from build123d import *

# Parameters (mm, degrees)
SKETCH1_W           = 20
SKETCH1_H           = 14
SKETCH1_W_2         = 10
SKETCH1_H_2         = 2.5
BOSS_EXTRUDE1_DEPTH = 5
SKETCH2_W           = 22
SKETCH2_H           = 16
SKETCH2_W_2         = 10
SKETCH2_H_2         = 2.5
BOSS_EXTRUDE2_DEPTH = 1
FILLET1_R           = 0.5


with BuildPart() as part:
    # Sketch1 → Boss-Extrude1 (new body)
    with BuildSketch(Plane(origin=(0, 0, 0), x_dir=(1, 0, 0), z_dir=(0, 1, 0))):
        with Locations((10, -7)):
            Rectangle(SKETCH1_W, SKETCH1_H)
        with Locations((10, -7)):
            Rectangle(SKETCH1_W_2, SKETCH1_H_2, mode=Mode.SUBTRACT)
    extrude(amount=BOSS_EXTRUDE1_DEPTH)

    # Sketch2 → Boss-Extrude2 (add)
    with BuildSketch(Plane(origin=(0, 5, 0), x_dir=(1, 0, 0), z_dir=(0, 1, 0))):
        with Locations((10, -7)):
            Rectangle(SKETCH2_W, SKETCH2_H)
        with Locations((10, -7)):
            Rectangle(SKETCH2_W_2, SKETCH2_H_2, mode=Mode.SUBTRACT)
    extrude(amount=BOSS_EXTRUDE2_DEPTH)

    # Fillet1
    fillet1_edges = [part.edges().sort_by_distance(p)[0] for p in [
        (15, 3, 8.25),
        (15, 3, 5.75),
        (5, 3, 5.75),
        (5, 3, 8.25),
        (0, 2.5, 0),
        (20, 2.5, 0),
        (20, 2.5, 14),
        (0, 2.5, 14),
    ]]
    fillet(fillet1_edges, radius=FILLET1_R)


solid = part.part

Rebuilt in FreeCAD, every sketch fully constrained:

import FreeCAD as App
import Part
import Sketcher

V = App.Vector
Q = App.Units.Quantity


def edges_at(feature, points):
    """Names of the edges that pass closest to the given points."""
    edges = feature.Shape.Edges
    near = lambda p: min(range(len(edges)), key=lambda i: edges[i].distToShape(Part.Vertex(*p))[0])
    return sorted({f"Edge{near(p) + 1}" for p in points})

doc = App.newDocument("Part")
body = doc.addObject("PartDesign::Body", "Body")

# Sketch on XZ plane
sketch1 = doc.addObject("Sketcher::SketchObject", "Sketch")
body.addObject(sketch1)
sketch1.AttachmentSupport = (doc.XZ_Plane, [""])
sketch1.MapMode = "FlatFace"
sketch1.addGeometry([
    Part.LineSegment(V(0, 0, 0), V(0, 14, 0)),  # 0
    Part.LineSegment(V(0, 14, 0), V(20, 14, 0)),  # 1
    Part.LineSegment(V(20, 14, 0), V(20, 0, 0)),  # 2
    Part.LineSegment(V(20, 0, 0), V(0, 0, 0)),  # 3
    Part.LineSegment(V(15, 8.2, 0), V(5, 8.2, 0)),  # 4
    Part.LineSegment(V(5, 8.2, 0), V(5, 5.8, 0)),  # 5
    Part.LineSegment(V(5, 5.8, 0), V(15, 5.8, 0)),  # 6
    Part.LineSegment(V(15, 5.8, 0), V(15, 8.2, 0)),  # 7
], False)
sketch1.addConstraint([
    Sketcher.Constraint("Coincident", 0, 2, 1, 1),
    Sketcher.Constraint("Coincident", 1, 2, 2, 1),
    Sketcher.Constraint("Coincident", 2, 2, 3, 1),
    Sketcher.Constraint("Coincident", 3, 2, 0, 1),
    Sketcher.Constraint("Coincident", 4, 2, 5, 1),
    Sketcher.Constraint("Coincident", 5, 2, 6, 1),
    Sketcher.Constraint("Coincident", 6, 2, 7, 1),
    Sketcher.Constraint("Coincident", 7, 2, 4, 1),
    Sketcher.Constraint("Vertical", 0),
    Sketcher.Constraint("Horizontal", 1),
    Sketcher.Constraint("Vertical", 2),
    Sketcher.Constraint("Horizontal", 3),
    Sketcher.Constraint("Horizontal", 4),
    Sketcher.Constraint("Vertical", 5),
    Sketcher.Constraint("Horizontal", 6),
    Sketcher.Constraint("Vertical", 7),
    Sketcher.Constraint("Coincident", 3, 2, -1, 1),
    Sketcher.Constraint("DistanceX", 1, 1, 1, 2, Q("20 mm")),
    Sketcher.Constraint("DistanceX", 4, 2, 4, 1, Q("10 mm")),
    Sketcher.Constraint("DistanceY", 0, 1, 0, 2, Q("14 mm")),
    Sketcher.Constraint("DistanceY", 5, 2, 5, 1, Q("2.5 mm")),
    Sketcher.Constraint("DistanceX", -1, 1, 4, 2, Q("5 mm")),
    Sketcher.Constraint("DistanceY", -1, 1, 4, 2, Q("8.25 mm")),
])
pad1 = doc.addObject("PartDesign::Pad", "Pad")
body.addObject(pad1)
pad1.Profile = sketch1
pad1.Length = 5
pad1.Reversed = True

# Sketch on XZ plane
sketch2 = doc.addObject("Sketcher::SketchObject", "Sketch001")
body.addObject(sketch2)
sketch2.AttachmentSupport = (doc.XZ_Plane, [""])
sketch2.MapMode = "FlatFace"
sketch2.AttachmentOffset = App.Placement(V(0, 0, -5), App.Rotation())
sketch2.addGeometry([
    Part.LineSegment(V(-1, -1, 0), V(-1, 15, 0)),  # 0
    Part.LineSegment(V(-1, 15, 0), V(21, 15, 0)),  # 1
    Part.LineSegment(V(21, 15, 0), V(21, -1, 0)),  # 2
    Part.LineSegment(V(21, -1, 0), V(-1, -1, 0)),  # 3
    Part.LineSegment(V(15, 8.2, 0), V(5, 8.2, 0)),  # 4
    Part.LineSegment(V(5, 8.2, 0), V(5, 5.8, 0)),  # 5
    Part.LineSegment(V(5, 5.8, 0), V(15, 5.8, 0)),  # 6
    Part.LineSegment(V(15, 5.8, 0), V(15, 8.2, 0)),  # 7
], False)
sketch2.addConstraint([
    Sketcher.Constraint("Coincident", 0, 2, 1, 1),
    Sketcher.Constraint("Coincident", 1, 2, 2, 1),
    Sketcher.Constraint("Coincident", 2, 2, 3, 1),
    Sketcher.Constraint("Coincident", 3, 2, 0, 1),
    Sketcher.Constraint("Coincident", 4, 2, 5, 1),
    Sketcher.Constraint("Coincident", 5, 2, 6, 1),
    Sketcher.Constraint("Coincident", 6, 2, 7, 1),
    Sketcher.Constraint("Coincident", 7, 2, 4, 1),
    Sketcher.Constraint("Vertical", 0),
    Sketcher.Constraint("Horizontal", 1),
    Sketcher.Constraint("Vertical", 2),
    Sketcher.Constraint("Horizontal", 3),
    Sketcher.Constraint("Horizontal", 4),
    Sketcher.Constraint("Vertical", 5),
    Sketcher.Constraint("Horizontal", 6),
    Sketcher.Constraint("Vertical", 7),
    Sketcher.Constraint("DistanceX", 1, 1, 1, 2, Q("22 mm")),
    Sketcher.Constraint("DistanceX", 4, 2, 4, 1, Q("10 mm")),
    Sketcher.Constraint("DistanceY", 0, 1, 0, 2, Q("16 mm")),
    Sketcher.Constraint("DistanceY", 5, 2, 5, 1, Q("2.5 mm")),
    Sketcher.Constraint("DistanceX", 0, 2, -1, 1, Q("1 mm")),
    Sketcher.Constraint("DistanceY", -1, 1, 0, 2, Q("15 mm")),
    Sketcher.Constraint("DistanceX", -1, 1, 4, 2, Q("5 mm")),
    Sketcher.Constraint("DistanceY", -1, 1, 4, 2, Q("8.25 mm")),
])
pad2 = doc.addObject("PartDesign::Pad", "Pad001")
body.addObject(pad2)
pad2.Profile = sketch2
pad2.Length = 1
pad2.Reversed = True
doc.recompute()

fillet = doc.addObject("PartDesign::Fillet", "Fillet")
body.addObject(fillet)
fillet.Base = (pad2, edges_at(pad2, [
    (15, 3, 8.25),
    (15, 3, 5.75),
    (5, 3, 5.75),
    (5, 3, 8.25),
    (0, 2.5, 0),
    (20, 2.5, 0),
    (20, 2.5, 14),
    (0, 2.5, 14),
]))
fillet.Radius = 0.5

doc.recompute()
